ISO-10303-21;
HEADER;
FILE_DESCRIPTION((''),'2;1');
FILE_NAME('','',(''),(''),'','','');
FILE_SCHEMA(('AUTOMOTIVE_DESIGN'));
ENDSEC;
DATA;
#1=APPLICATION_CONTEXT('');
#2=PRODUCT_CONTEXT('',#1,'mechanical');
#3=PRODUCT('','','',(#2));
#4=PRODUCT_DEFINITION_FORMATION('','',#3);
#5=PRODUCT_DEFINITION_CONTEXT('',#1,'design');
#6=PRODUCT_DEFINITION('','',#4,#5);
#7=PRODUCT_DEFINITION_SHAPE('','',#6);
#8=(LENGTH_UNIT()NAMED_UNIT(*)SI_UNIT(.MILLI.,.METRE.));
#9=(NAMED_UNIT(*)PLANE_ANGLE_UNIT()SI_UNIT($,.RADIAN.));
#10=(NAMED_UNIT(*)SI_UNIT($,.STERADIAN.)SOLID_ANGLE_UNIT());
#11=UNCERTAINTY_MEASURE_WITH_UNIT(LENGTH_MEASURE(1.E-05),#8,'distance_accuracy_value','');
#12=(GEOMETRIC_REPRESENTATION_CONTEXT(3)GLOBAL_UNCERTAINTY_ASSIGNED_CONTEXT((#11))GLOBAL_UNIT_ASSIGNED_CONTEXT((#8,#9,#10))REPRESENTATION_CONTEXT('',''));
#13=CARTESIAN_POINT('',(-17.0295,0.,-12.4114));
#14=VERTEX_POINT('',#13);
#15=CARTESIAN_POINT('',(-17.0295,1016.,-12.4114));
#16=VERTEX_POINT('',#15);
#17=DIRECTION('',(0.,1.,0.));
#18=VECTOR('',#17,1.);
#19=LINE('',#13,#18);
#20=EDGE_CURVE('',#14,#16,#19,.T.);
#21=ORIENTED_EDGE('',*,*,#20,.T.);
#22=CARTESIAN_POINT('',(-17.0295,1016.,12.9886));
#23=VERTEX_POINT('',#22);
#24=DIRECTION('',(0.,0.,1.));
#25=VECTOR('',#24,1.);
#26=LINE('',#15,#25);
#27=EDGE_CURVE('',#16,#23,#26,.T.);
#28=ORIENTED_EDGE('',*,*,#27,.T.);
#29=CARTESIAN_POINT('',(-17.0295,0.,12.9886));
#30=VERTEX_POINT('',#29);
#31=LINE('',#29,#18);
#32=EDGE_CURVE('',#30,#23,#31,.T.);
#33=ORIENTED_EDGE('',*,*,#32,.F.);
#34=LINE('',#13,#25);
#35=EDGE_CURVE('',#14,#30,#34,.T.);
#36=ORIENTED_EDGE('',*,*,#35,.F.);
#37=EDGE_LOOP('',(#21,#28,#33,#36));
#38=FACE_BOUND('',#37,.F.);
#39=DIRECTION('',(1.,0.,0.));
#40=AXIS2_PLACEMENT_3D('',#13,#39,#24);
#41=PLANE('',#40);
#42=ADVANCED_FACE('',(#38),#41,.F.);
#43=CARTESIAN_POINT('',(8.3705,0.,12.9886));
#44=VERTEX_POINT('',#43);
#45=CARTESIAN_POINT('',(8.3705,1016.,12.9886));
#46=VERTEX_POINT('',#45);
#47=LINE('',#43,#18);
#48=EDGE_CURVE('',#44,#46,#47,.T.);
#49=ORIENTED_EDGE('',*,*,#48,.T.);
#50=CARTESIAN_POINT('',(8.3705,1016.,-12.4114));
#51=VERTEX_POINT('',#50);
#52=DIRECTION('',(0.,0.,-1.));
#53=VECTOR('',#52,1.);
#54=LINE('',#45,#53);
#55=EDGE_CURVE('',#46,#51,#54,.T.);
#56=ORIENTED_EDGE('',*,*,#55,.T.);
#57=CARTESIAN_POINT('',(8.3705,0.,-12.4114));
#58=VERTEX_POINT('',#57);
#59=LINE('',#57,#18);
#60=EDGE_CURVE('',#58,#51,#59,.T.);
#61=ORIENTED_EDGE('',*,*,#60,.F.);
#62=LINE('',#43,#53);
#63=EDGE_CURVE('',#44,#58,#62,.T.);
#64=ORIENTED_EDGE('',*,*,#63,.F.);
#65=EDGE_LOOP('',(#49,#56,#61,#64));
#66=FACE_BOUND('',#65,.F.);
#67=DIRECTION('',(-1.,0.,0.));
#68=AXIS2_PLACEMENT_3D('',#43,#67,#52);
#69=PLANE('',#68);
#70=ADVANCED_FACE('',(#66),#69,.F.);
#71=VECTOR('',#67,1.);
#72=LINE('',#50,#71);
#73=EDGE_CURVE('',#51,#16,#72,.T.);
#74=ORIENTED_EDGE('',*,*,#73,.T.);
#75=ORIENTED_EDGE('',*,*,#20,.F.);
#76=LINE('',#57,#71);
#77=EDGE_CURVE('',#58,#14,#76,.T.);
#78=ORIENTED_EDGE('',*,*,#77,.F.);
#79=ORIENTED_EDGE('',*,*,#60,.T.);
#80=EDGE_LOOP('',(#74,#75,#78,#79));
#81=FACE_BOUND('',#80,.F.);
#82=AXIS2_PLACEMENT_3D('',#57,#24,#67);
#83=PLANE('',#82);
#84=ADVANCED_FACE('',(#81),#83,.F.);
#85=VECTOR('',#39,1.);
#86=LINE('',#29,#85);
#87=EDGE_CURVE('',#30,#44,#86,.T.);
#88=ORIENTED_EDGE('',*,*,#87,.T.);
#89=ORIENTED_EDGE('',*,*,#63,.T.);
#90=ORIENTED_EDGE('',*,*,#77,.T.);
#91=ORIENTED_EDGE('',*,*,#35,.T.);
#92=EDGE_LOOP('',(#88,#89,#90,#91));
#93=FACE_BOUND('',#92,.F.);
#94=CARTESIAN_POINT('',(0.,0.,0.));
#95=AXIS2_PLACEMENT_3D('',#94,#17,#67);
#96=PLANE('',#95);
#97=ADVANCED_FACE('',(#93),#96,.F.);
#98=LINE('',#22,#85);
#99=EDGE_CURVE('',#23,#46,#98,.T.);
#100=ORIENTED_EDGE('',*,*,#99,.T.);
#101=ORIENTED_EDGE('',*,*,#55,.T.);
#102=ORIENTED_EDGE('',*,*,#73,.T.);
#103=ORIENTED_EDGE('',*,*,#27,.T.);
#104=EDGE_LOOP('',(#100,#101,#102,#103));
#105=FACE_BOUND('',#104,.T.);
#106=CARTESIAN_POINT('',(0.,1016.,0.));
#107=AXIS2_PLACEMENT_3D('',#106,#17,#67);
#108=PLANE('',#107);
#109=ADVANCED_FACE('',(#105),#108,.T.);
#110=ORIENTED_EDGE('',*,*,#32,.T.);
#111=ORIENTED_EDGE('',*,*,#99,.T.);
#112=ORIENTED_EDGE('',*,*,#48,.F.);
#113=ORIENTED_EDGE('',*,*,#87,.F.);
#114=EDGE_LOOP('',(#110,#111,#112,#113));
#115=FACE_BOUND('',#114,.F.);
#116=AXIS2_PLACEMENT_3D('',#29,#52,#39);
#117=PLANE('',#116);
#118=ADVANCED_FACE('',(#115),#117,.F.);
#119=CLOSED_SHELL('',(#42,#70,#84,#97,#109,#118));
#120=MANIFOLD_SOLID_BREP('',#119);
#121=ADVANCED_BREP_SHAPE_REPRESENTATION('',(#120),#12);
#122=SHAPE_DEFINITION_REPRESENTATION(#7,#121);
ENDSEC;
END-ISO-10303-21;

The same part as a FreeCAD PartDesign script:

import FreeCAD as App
import Part
import Sketcher

V = App.Vector
Q = App.Units.Quantity

doc = App.newDocument("Part")
params = doc.addObject("Spreadsheet::Sheet", "Params")
for row, (alias, value) in enumerate([
    ("sketch1_width", "1 in"),
    ("pad1_length", "40 in"),
], start=1):
    params.set(f"A{row}", alias)
    params.set(f"B{row}", "=" + value)
    params.setAlias(f"B{row}", alias)

body = doc.addObject("PartDesign::Body", "Body")

sketch1 = doc.addObject("Sketcher::SketchObject", "Sketch")
body.addObject(sketch1)
sketch1.AttachmentSupport = (doc.XZ_Plane, [""])
sketch1.MapMode = "FlatFace"
sketch1.addGeometry(Part.LineSegment(V(-17, -12, 0), V(-17, 13, 0)), False)
sketch1.addGeometry(Part.LineSegment(V(-17, 13, 0), V(8, 13, 0)), False)
sketch1.addGeometry(Part.LineSegment(V(8, 13, 0), V(8, -12, 0)), False)
sketch1.addGeometry(Part.LineSegment(V(8, -12, 0), V(-17, -12, 0)), False)
sketch1.addConstraint(Sketcher.Constraint("Coincident", 0, 2, 1, 1))
sketch1.addConstraint(Sketcher.Constraint("Coincident", 1, 2, 2, 1))
sketch1.addConstraint(Sketcher.Constraint("Coincident", 2, 2, 3, 1))
sketch1.addConstraint(Sketcher.Constraint("Coincident", 3, 2, 0, 1))
sketch1.addConstraint(Sketcher.Constraint("Vertical", 0))
sketch1.addConstraint(Sketcher.Constraint("Horizontal", 1))
sketch1.addConstraint(Sketcher.Constraint("Vertical", 2))
sketch1.addConstraint(Sketcher.Constraint("Horizontal", 3))
sketch1.addConstraint(Sketcher.Constraint("Equal", 3, 0))
sketch1.addConstraint(Sketcher.Constraint("DistanceX", 1, 1, 1, 2, Q("1 in")))
sketch1.addConstraint(Sketcher.Constraint("DistanceX", 0, 2, -1, 1, Q("17.0295 mm")))
sketch1.addConstraint(Sketcher.Constraint("DistanceY", -1, 1, 0, 2, Q("12.9886 mm")))
sketch1.setExpression("Constraints[9]", "Params.sketch1_width")
pad1 = doc.addObject("PartDesign::Pad", "Pad")
body.addObject(pad1)
pad1.Profile = sketch1
pad1.setExpression("Length", "Params.pad1_length")
pad1.Reversed = True

doc.recompute()
